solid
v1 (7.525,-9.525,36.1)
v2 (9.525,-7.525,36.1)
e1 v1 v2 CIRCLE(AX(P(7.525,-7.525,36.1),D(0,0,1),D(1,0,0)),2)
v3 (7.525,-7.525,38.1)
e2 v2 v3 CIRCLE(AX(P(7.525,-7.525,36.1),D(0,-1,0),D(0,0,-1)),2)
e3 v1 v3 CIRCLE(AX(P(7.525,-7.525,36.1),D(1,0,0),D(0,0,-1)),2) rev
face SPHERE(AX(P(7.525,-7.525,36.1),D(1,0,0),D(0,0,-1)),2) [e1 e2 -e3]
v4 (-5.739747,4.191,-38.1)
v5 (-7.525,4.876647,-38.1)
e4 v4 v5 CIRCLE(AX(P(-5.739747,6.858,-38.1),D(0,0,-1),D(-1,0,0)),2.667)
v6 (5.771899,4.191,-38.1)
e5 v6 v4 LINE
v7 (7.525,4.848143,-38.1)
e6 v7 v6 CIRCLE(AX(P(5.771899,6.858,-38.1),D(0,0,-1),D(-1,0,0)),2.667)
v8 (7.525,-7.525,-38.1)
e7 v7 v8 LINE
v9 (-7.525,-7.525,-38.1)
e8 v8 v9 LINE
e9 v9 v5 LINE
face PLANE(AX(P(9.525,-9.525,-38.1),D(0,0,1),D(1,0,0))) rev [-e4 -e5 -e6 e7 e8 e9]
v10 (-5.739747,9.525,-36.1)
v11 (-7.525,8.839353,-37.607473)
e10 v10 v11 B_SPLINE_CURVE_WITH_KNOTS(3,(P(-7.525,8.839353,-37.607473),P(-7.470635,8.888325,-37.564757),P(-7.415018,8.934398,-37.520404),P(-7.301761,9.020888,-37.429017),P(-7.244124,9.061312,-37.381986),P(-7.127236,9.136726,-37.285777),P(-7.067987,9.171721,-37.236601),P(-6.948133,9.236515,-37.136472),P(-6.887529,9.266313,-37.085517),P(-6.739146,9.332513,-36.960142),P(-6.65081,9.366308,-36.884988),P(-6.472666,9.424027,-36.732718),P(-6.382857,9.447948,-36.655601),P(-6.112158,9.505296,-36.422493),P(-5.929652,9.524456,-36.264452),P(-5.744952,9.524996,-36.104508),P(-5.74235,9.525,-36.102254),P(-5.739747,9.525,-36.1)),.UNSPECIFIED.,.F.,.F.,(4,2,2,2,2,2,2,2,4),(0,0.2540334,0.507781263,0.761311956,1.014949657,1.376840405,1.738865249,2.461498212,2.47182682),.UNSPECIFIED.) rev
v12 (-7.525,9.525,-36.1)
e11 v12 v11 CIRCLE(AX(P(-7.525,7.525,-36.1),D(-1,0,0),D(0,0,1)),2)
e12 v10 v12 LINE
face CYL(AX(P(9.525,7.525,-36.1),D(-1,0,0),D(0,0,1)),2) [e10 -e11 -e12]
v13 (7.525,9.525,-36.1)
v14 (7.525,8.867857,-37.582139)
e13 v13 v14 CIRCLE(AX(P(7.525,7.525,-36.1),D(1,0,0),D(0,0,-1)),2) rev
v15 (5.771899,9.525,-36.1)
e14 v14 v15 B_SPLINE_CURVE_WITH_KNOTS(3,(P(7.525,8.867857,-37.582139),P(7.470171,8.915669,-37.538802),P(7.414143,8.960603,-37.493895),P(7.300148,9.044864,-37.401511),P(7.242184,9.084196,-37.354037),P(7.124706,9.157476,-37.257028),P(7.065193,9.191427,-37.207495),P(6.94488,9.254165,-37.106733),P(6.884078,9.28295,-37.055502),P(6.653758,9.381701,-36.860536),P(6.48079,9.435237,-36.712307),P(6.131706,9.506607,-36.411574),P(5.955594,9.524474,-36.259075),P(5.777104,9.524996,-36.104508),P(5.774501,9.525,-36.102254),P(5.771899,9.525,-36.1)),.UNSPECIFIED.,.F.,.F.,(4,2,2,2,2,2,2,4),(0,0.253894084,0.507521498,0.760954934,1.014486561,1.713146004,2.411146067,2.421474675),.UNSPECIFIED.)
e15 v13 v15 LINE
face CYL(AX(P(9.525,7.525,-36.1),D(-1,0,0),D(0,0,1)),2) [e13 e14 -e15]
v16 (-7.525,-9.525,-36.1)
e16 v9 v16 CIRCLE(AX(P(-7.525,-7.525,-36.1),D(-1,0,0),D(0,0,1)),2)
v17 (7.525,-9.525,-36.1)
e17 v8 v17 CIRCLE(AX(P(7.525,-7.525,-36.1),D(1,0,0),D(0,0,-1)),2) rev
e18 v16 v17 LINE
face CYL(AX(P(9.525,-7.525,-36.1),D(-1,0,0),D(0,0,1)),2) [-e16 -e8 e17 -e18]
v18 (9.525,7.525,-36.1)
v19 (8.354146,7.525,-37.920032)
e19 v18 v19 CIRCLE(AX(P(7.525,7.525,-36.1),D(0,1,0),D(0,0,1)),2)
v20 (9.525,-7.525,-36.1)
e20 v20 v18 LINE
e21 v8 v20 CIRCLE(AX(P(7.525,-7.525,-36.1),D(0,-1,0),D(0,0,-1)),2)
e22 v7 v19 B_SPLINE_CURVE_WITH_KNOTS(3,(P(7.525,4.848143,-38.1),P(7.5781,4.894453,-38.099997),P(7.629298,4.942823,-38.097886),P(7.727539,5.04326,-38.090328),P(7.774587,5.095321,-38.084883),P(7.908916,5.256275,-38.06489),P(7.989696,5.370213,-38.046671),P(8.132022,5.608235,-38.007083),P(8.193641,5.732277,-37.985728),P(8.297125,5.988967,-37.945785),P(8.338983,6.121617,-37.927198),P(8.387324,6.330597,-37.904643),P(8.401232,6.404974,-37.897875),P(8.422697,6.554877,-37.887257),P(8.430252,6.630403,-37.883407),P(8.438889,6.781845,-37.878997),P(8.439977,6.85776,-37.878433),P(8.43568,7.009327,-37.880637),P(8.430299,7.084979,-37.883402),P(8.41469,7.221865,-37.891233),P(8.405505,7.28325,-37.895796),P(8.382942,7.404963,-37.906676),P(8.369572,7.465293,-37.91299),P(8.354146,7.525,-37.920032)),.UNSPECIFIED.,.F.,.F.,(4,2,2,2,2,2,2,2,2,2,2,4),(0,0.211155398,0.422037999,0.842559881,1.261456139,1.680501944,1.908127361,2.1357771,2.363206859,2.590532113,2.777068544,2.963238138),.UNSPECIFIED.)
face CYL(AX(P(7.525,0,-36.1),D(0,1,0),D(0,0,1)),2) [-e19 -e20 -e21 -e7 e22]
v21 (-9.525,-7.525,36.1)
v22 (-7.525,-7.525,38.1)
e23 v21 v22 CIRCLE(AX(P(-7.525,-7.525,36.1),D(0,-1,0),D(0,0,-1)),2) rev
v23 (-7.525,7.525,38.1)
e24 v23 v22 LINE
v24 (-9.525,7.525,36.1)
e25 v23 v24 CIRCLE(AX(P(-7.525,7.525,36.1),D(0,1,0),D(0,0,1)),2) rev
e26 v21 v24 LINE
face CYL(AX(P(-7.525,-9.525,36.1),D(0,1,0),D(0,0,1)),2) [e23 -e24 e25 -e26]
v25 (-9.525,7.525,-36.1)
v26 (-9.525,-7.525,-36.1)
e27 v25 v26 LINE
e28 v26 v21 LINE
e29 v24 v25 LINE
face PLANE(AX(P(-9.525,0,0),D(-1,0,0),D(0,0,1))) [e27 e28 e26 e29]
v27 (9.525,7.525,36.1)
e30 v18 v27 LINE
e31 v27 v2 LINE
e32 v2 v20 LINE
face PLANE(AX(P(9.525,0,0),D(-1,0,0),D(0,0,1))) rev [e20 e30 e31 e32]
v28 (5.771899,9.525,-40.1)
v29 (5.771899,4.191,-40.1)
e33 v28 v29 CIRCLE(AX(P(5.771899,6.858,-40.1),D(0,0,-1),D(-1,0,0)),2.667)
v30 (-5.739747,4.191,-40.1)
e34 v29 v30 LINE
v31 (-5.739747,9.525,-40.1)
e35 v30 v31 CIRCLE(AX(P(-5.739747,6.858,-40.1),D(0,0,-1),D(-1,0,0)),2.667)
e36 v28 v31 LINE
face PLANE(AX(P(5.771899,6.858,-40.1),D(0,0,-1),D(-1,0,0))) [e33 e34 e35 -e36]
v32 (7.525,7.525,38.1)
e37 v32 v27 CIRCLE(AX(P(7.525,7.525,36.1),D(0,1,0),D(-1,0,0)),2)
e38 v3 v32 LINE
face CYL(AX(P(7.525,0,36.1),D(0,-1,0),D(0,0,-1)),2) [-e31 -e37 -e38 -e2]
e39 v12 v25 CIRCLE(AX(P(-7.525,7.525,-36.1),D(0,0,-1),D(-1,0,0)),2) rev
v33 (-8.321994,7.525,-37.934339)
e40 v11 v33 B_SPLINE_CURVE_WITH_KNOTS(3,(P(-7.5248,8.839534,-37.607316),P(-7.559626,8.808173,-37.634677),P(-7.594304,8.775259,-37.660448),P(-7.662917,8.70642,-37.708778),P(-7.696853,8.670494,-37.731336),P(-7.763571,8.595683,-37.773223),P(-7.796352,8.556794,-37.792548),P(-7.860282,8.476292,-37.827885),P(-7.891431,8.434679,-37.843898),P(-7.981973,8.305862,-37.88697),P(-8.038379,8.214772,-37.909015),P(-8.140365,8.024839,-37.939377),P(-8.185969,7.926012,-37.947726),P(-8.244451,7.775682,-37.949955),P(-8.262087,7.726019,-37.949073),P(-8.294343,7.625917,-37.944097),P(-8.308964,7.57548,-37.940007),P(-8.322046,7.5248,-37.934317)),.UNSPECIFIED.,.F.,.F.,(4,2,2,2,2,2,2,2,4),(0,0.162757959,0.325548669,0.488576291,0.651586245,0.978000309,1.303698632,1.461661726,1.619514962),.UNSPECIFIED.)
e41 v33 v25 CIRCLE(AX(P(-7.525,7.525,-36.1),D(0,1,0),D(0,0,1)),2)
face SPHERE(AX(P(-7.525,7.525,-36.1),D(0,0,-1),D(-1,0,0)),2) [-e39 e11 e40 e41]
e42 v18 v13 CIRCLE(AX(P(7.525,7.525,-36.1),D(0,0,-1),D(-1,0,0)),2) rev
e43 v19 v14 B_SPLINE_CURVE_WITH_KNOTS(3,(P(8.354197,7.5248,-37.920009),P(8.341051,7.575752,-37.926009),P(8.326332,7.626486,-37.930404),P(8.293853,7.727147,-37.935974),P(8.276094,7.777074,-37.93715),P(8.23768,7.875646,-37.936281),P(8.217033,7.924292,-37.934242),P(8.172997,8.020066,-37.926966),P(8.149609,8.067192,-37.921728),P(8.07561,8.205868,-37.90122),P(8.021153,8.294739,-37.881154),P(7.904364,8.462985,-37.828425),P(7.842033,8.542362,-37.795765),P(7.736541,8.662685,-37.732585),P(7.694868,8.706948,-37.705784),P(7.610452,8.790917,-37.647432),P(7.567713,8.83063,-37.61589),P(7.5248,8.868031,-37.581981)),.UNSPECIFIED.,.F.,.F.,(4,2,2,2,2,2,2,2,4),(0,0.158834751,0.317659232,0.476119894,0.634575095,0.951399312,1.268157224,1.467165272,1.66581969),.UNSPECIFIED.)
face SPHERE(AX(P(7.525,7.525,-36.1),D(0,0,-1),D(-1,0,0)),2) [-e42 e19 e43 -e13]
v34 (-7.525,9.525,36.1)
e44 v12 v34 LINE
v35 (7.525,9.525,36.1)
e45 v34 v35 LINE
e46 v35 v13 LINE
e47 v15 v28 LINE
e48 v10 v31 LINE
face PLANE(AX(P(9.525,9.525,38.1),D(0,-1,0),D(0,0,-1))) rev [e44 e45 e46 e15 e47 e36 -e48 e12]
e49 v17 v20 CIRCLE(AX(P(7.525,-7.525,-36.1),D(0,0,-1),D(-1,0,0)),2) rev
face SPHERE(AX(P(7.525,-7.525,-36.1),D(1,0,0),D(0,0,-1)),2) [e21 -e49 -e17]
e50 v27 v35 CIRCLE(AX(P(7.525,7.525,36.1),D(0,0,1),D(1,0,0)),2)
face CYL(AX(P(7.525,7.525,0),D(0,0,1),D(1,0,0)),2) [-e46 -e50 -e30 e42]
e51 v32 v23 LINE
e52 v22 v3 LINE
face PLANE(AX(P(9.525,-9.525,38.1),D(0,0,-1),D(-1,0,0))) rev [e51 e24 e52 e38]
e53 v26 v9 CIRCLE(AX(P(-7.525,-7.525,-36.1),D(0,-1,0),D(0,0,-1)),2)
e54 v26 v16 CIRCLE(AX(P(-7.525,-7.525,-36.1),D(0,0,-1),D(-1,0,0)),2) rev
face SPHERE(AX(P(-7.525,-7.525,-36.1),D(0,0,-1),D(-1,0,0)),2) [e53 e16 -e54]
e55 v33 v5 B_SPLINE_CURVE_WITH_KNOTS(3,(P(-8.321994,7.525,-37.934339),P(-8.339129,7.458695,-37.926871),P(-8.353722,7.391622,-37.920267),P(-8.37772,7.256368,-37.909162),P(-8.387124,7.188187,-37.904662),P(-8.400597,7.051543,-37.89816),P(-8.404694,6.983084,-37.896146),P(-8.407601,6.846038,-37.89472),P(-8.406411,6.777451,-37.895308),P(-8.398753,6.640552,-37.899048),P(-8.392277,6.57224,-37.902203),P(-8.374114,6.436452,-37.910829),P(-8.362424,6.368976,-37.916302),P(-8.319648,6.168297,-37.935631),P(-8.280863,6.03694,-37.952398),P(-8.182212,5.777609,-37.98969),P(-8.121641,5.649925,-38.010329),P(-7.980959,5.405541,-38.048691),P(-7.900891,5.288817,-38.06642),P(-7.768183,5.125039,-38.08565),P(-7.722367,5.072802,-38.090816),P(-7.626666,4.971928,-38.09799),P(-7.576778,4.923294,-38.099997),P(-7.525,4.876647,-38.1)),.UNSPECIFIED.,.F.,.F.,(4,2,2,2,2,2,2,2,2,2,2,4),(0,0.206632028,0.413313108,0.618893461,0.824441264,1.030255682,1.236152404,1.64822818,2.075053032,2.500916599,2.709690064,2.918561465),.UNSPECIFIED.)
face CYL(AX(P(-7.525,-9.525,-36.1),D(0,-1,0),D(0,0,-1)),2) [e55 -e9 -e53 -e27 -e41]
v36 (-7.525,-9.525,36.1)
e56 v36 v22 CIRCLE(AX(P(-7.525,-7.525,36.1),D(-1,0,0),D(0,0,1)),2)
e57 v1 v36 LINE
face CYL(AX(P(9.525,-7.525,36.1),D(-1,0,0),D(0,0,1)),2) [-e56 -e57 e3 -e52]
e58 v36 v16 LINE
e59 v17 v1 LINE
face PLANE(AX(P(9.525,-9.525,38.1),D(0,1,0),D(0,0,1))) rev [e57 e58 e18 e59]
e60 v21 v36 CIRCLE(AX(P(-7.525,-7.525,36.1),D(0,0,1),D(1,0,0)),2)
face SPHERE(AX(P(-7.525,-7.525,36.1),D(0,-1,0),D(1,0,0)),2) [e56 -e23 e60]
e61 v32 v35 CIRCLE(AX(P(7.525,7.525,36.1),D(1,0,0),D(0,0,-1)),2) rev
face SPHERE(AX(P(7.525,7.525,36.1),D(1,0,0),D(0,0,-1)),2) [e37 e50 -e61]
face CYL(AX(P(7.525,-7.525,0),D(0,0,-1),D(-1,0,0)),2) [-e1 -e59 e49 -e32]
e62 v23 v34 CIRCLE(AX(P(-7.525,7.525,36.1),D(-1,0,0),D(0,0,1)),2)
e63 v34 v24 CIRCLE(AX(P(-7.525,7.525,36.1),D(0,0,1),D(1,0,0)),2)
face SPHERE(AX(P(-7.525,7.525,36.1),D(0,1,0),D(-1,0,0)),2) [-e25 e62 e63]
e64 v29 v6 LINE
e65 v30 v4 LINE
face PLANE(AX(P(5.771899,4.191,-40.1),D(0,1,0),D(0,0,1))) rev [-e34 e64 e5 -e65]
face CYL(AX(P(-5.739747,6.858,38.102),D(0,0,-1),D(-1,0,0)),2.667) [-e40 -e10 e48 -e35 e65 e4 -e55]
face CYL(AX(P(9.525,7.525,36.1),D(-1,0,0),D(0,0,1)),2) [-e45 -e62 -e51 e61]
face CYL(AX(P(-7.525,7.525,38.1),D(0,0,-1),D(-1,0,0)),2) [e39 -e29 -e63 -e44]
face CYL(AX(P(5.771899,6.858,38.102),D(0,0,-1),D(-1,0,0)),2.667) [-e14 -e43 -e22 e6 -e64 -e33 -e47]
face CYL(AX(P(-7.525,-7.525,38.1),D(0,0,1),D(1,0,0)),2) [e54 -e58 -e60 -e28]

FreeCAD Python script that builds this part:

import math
import FreeCAD as App
import Part
import Sketcher

V = App.Vector
Q = App.Units.Quantity


def add_polygon(sketch, points):
    """Adds a closed chain of lines whose ends are joined by coincident constraints."""
    first, n = sketch.GeometryCount, len(points)
    for a, b in zip(points, points[1:] + points[:1]):
        sketch.addGeometry(Part.LineSegment(App.Vector(*a, 0), App.Vector(*b, 0)), False)
    for i in range(n):
        sketch.addConstraint(Sketcher.Constraint("Coincident", first + i, 2, first + (i + 1) % n, 1))

doc = App.newDocument("Part")
body = doc.addObject("PartDesign::Body", "Body")

sketch1 = doc.addObject("Sketcher::SketchObject", "Sketch")
body.addObject(sketch1)
sketch1.AttachmentSupport = (doc.YZ_Plane, [""])
sketch1.MapMode = "FlatFace"
add_polygon(sketch1, [(9.525, 38.1), (-9.525, 38.1), (-9.525, -38.1), (9.525, -38.1)])
sketch1.addConstraint(Sketcher.Constraint("Horizontal", 0))
sketch1.addConstraint(Sketcher.Constraint("Vertical", 1))
sketch1.addConstraint(Sketcher.Constraint("Horizontal", 2))
sketch1.addConstraint(Sketcher.Constraint("Vertical", 3))
sketch1.addConstraint(Sketcher.Constraint("Symmetric", 0, 2, 2, 2, -1, 1))
sketch1.addConstraint(Sketcher.Constraint("DistanceY", 1, 2, 1, 1, Q("3 in")))
sketch1.addConstraint(Sketcher.Constraint("DistanceX", 0, 2, 0, 1, Q("0.75 in")))
pad1 = doc.addObject("PartDesign::Pad", "Pad")
body.addObject(pad1)
pad1.Profile = sketch1
pad1.Length = Q("0.75 in")
pad1.Midplane = True
doc.recompute()

fillet = doc.addObject("PartDesign::Fillet", "Fillet")
body.addObject(fillet)
fillet.Base = (pad1, ["Edge1"])
fillet.UseAllEdges = True
fillet.Radius = 2

sketch2 = doc.addObject("Sketcher::SketchObject", "Sketch001")
body.addObject(sketch2)
sketch2.AttachmentSupport = (doc.XY_Plane, [""])
sketch2.MapMode = "FlatFace"
sketch2.AttachmentOffset = App.Placement(V(0, 0, -1.5 * 25.4), App.Rotation())
sketch2.addGeometry(Part.LineSegment(V(-5.739747, 9.525, 0), V(5.771899, 9.525, 0)), False)
sketch2.addGeometry(Part.ArcOfCircle(Part.Circle(V(5.771899, 6.858, 0), V(0, 0, 1), 2.667), math.radians(-90), math.radians(90)), False)
sketch2.addGeometry(Part.LineSegment(V(5.771899, 4.191, 0), V(-5.739747, 4.191, 0)), False)
sketch2.addGeometry(Part.ArcOfCircle(Part.Circle(V(-5.739747, 6.858, 0), V(0, 0, 1), 2.667), math.radians(90), math.radians(270)), False)
sketch2.addConstraint(Sketcher.Constraint("Tangent", 0, 2, 1, 2))
sketch2.addConstraint(Sketcher.Constraint("Tangent", 1, 1, 2, 1))
sketch2.addConstraint(Sketcher.Constraint("Tangent", 2, 2, 3, 2))
sketch2.addConstraint(Sketcher.Constraint("Tangent", 3, 1, 0, 1))
sketch2.addConstraint(Sketcher.Constraint("Horizontal", 0))
sketch2.addConstraint(Sketcher.Constraint("Horizontal", 2))
sketch2.addConstraint(Sketcher.Constraint("Radius", 1, Q("0.105 in")))
sketch2.addConstraint(Sketcher.Constraint("DistanceY", -1, 1, 1, 3, Q("0.27 in")))
sketch2.addConstraint(Sketcher.Constraint("DistanceX", -1, 1, 1, 3, Q("5.771899 mm")))
sketch2.addConstraint(Sketcher.Constraint("DistanceX", 0, 1, 0, 2, Q("11.511646 mm")))
pad2 = doc.addObject("PartDesign::Pad", "Pad001")
body.addObject(pad2)
pad2.Profile = sketch2
pad2.Length = 2
pad2.Reversed = True

sketch3 = doc.addObject("Sketcher::SketchObject", "Sketch002")
body.addObject(sketch3)
sketch3.AttachmentSupport = (doc.XY_Plane, [""])
sketch3.MapMode = "FlatFace"
sketch3.AttachmentOffset = App.Placement(V(0, 0, -1.5 * 25.4), App.Rotation())
sketch3.addGeometry(Part.LineSegment(V(-5.739747, 9.525, 0), V(5.771899, 9.525, 0)), False)
sketch3.addGeometry(Part.ArcOfCircle(Part.Circle(V(5.771899, 6.858, 0), V(0, 0, 1), 2.667), math.radians(-90), math.radians(90)), False)
sketch3.addGeometry(Part.LineSegment(V(5.771899, 4.191, 0), V(-5.739747, 4.191, 0)), False)
sketch3.addGeometry(Part.ArcOfCircle(Part.Circle(V(-5.739747, 6.858, 0), V(0, 0, 1), 2.667), math.radians(90), math.radians(270)), False)
sketch3.addConstraint(Sketcher.Constraint("Tangent", 0, 2, 1, 2))
sketch3.addConstraint(Sketcher.Constraint("Tangent", 1, 1, 2, 1))
sketch3.addConstraint(Sketcher.Constraint("Tangent", 2, 2, 3, 2))
sketch3.addConstraint(Sketcher.Constraint("Tangent", 3, 1, 0, 1))
sketch3.addConstraint(Sketcher.Constraint("Horizontal", 0))
sketch3.addConstraint(Sketcher.Constraint("Horizontal", 2))
sketch3.addConstraint(Sketcher.Constraint("Radius", 1, Q("0.105 in")))
sketch3.addConstraint(Sketcher.Constraint("DistanceY", -1, 1, 1, 3, Q("0.27 in")))
sketch3.addConstraint(Sketcher.Constraint("DistanceX", -1, 1, 1, 3, Q("5.771899 mm")))
sketch3.addConstraint(Sketcher.Constraint("DistanceX", 0, 1, 0, 2, Q("11.511646 mm")))
pad3 = doc.addObject("PartDesign::Pad", "Pad002")
body.addObject(pad3)
pad3.Profile = sketch3
pad3.Length = 2

doc.recompute()
